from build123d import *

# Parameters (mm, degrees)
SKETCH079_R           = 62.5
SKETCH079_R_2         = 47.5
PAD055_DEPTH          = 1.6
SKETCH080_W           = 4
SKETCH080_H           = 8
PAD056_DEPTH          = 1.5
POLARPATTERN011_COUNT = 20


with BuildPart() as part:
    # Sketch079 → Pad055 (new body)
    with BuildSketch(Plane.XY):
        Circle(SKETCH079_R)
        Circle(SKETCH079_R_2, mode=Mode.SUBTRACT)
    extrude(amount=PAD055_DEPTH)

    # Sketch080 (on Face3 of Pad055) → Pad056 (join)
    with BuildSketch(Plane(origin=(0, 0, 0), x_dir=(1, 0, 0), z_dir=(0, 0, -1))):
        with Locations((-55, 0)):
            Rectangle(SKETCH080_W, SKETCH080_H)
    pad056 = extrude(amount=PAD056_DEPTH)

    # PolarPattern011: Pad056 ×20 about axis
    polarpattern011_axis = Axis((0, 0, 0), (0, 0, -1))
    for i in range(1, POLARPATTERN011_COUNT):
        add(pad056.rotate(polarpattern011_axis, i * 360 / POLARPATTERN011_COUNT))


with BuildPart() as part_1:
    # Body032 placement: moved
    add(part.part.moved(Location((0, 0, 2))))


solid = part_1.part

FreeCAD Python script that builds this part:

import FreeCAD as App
import Part
import Sketcher
Q = App.Units.Quantity

doc = App.newDocument("Part")
params = doc.addObject("Spreadsheet::Sheet", "Params")
for row, (alias, value) in enumerate([
    ("sketch1_diameter", "125 mm"),
    ("sketch1_diameter2", "95 mm"),
    ("pad1_length", "1.6 mm"),
    ("sketch2_width", "4 mm"),
    ("sketch2_height", "8 mm"),
    ("pad2_length", "1.5 mm"),
], start=1):
    params.set(f"A{row}", alias)
    params.set(f"B{row}", "=" + value)
    params.setAlias(f"B{row}", alias)

body = doc.addObject("PartDesign::Body", "Body")

# Sketch on XY plane
sketch1 = doc.addObject("Sketcher::SketchObject", "Sketch")
body.addObject(sketch1)
sketch1.AttachmentSupport = (doc.XY_Plane, [""])
sketch1.MapMode = "FlatFace"
sketch1.addGeometry([
    Part.Circle(App.Vector(0, 0, 0), App.Vector(0, 0, 1), 62),
    Part.Circle(App.Vector(0, 0, 0), App.Vector(0, 0, 1), 48),
], False)
sketch1.addConstraint([
    Sketcher.Constraint("Coincident", 0, 3, -1, 1),
    Sketcher.Constraint("Coincident", 1, 3, -1, 1),
    Sketcher.Constraint("Diameter", 0, Q("125 mm")),
    Sketcher.Constraint("Diameter", 1, Q("95 mm")),
])
sketch1.setExpression("Constraints[2]", "Params.sketch1_diameter")
sketch1.setExpression("Constraints[3]", "Params.sketch1_diameter2")
pad1 = doc.addObject("PartDesign::Pad", "Pad")
body.addObject(pad1)
pad1.Profile = sketch1
pad1.setExpression("Length", "Params.pad1_length")

# Sketch on XY plane
sketch2 = doc.addObject("Sketcher::SketchObject", "Sketch001")
body.addObject(sketch2)
sketch2.AttachmentSupport = (doc.XY_Plane, [""])
sketch2.MapMode = "FlatFace"
sketch2.addGeometry([
    Part.LineSegment(App.Vector(-57, -4, 0), App.Vector(-57, 4, 0)),
    Part.LineSegment(App.Vector(-57, 4, 0), App.Vector(-53, 4, 0)),
    Part.LineSegment(App.Vector(-53, 4, 0), App.Vector(-53, -4, 0)),
    Part.LineSegment(App.Vector(-53, -4, 0), App.Vector(-57, -4, 0)),
], False)
sketch2.addConstraint([
    Sketcher.Constraint("Coincident", 0, 2, 1, 1),
    Sketcher.Constraint("Coincident", 1, 2, 2, 1),
    Sketcher.Constraint("Coincident", 2, 2, 3, 1),
    Sketcher.Constraint("Coincident", 3, 2, 0, 1),
    Sketcher.Constraint("Vertical", 0),
    Sketcher.Constraint("Horizontal", 1),
    Sketcher.Constraint("Vertical", 2),
    Sketcher.Constraint("Horizontal", 3),
    Sketcher.Constraint("DistanceX", 1, 1, 1, 2, Q("4 mm")),
    Sketcher.Constraint("DistanceY", 0, 1, 0, 2, Q("8 mm")),
    Sketcher.Constraint("DistanceX", 0, 2, -1, 1, Q("57 mm")),
    Sketcher.Constraint("DistanceY", -1, 1, 0, 2, Q("4 mm")),
])
sketch2.setExpression("Constraints[8]", "Params.sketch2_width")
sketch2.setExpression("Constraints[9]", "Params.sketch2_height")
pad2 = doc.addObject("PartDesign::Pad", "Pad001")
body.addObject(pad2)
pad2.Profile = sketch2
pad2.setExpression("Length", "Params.pad2_length")
pad2.Reversed = True
doc.recompute()

polarpattern = doc.addObject("PartDesign::PolarPattern", "PolarPattern")
body.addObject(polarpattern)
polarpattern.Originals = [pad2]
polarpattern.Axis = (doc.Z_Axis, [""])
polarpattern.Angle = 360
polarpattern.Occurrences = 20
body.Tip = polarpattern
body2 = doc.addObject("PartDesign::Body", "Body001")
doc.recompute()

body.Placement = App.Placement(App.Vector(0, 0, 2), App.Rotation(App.Vector(0, 0, 1), 0))
boolean = doc.addObject("PartDesign::Boolean", "Boolean")
body2.addObject(boolean)
boolean.Type = "Fuse"
boolean.addObjects([body])

doc.recompute()
